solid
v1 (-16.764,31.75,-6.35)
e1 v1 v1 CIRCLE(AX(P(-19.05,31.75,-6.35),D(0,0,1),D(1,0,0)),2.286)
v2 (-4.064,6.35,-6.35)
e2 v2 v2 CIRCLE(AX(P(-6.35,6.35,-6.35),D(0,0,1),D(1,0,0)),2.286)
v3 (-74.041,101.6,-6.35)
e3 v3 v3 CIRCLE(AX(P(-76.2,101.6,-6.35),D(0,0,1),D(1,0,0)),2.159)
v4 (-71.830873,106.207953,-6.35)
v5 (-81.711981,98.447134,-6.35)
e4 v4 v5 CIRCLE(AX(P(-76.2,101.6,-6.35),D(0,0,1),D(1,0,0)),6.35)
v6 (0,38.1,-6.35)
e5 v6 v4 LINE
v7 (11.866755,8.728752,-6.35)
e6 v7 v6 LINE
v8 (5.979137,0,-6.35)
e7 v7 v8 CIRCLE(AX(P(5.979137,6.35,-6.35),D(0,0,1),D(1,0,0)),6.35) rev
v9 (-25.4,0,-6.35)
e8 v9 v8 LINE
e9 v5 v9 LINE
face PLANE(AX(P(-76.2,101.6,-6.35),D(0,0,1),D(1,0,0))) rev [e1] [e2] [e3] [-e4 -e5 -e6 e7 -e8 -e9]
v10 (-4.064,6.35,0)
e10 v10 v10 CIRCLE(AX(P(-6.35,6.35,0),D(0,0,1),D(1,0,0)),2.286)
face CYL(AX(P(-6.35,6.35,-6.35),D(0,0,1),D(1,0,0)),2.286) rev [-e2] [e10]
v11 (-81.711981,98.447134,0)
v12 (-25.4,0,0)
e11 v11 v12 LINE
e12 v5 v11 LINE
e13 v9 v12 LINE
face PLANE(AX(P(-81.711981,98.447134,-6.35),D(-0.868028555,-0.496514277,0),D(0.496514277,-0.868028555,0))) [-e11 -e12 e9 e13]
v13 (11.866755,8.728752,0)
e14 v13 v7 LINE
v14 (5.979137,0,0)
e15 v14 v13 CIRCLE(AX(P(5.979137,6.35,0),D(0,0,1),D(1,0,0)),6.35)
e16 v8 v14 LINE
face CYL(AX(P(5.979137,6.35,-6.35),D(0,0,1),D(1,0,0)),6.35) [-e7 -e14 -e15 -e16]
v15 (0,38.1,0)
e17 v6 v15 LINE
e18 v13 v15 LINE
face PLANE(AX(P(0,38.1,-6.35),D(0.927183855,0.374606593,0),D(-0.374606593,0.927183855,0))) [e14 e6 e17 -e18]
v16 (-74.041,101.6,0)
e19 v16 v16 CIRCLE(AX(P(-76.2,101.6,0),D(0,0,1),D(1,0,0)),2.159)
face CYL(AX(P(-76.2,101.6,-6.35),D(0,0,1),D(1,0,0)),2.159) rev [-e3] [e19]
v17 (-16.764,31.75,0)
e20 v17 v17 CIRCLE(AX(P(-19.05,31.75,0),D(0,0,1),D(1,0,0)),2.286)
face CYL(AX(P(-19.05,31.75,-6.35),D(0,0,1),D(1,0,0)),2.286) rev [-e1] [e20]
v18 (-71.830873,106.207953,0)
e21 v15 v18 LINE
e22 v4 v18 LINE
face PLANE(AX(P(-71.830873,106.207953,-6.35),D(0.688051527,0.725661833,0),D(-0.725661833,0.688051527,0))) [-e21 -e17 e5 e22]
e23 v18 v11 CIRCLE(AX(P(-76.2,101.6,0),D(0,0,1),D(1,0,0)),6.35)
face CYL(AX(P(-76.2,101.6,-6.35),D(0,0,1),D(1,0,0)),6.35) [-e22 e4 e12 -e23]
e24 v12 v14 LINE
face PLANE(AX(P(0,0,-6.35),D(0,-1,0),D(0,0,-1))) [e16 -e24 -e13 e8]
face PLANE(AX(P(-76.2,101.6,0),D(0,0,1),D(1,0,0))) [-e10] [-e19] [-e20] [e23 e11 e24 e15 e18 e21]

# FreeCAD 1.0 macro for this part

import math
import FreeCAD as App
import Part
import Sketcher

V = App.Vector
Q = App.Units.Quantity


def edges_at(feature, points):
    """Names of the edges that pass closest to the given points."""
    edges = feature.Shape.Edges
    near = lambda p: min(range(len(edges)), key=lambda i: edges[i].distToShape(Part.Vertex(*p))[0])
    return sorted({f"Edge{near(p) + 1}" for p in points})

doc = App.newDocument("Part")
params = doc.addObject("Spreadsheet::Sheet", "Params")
for row, (alias, value) in enumerate([
    ("sketch1_diameter", "0.18 in"),
    ("sketch1_diameter2", "0.17 in"),
    ("sketch1_radius", "0.25 in"),
    ("pad1_length", "0.25 in"),
    ("fillet_radius", "0.25 in"),
], start=1):
    params.set(f"A{row}", alias)
    params.set(f"B{row}", "=" + value)
    params.setAlias(f"B{row}", alias)

body = doc.addObject("PartDesign::Body", "Body")

# Sketch on XY plane
sketch1 = body.newObject("Sketcher::SketchObject", "Sketch")
sketch1.AttachmentSupport = (doc.getObject("XY_Plane"), [""])
sketch1.MapMode = "FlatFace"
sketch1.addGeometry([
    Part.LineSegment(V(-81.711981, 98.447134, 0), V(-25.4, 0, 0)),  # 0
    Part.LineSegment(V(-25.4, 0, 0), V(15.393399, 0, 0)),  # 1
    Part.LineSegment(V(15.393399, 0, 0), V(0, 38.1, 0)),  # 2
    Part.LineSegment(V(0, 38.1, 0), V(-71.830873, 106.207953, 0)),  # 3
    Part.ArcOfCircle(Part.Circle(V(-76.2, 101.6, 0), V(0, 0, 1), 6.35), math.radians(46.523932), math.radians(209.769653)),  # 4
    Part.Circle(V(-6.35, 6.35, 0), V(0, 0, 1), 2.286),  # 5
    Part.Circle(V(-19.05, 31.75, 0), V(0, 0, 1), 2.286),  # 6
    Part.Circle(V(-76.2, 101.6, 0), V(0, 0, 1), 2.159),  # 7
], False)
sketch1.addConstraint([
    Sketcher.Constraint("Coincident", 0, 2, 1, 1),
    Sketcher.Constraint("Coincident", 1, 2, 2, 1),
    Sketcher.Constraint("Coincident", 2, 2, 3, 1),
    Sketcher.Constraint("Tangent", 3, 2, 4, 1),
    Sketcher.Constraint("Tangent", 4, 2, 0, 1),
    Sketcher.Constraint("Horizontal", 1),
    Sketcher.Constraint("Coincident", 7, 3, 4, 3),
    Sketcher.Constraint("Equal", 5, 6),
    Sketcher.Constraint("PointOnObject", 0, 2, -1),
    Sketcher.Constraint("PointOnObject", 2, 2, -2),
    Sketcher.Constraint("Diameter", 5, Q("0.18 in")),
    Sketcher.Constraint("Diameter", 7, Q("0.17 in")),
    Sketcher.Constraint("Radius", 4, Q("0.25 in")),
    Sketcher.Constraint("DistanceX", 4, 3, -1, 1, Q("3 in")),
    Sketcher.Constraint("DistanceY", -1, 1, 4, 3, Q("4 in")),
    Sketcher.Constraint("DistanceX", 0, 2, -1, 1, Q("1 in")),
    Sketcher.Constraint("Angle", 2, Q("112 deg")),
    Sketcher.Constraint("DistanceY", 5, 3, 6, 3, Q("1 in")),
    Sketcher.Constraint("DistanceY", -1, 1, 2, 2, Q("1.5 in")),
    Sketcher.Constraint("DistanceX", 6, 3, 5, 3, Q("0.5 in")),
    Sketcher.Constraint("DistanceX", 5, 3, -1, 1, Q("0.25 in")),
    Sketcher.Constraint("DistanceY", -1, 1, 5, 3, Q("0.25 in")),
])
sketch1.setExpression("Constraints[10]", "Params.sketch1_diameter")
sketch1.setExpression("Constraints[11]", "Params.sketch1_diameter2")
sketch1.setExpression("Constraints[12]", "Params.sketch1_radius")
pad1 = body.newObject("PartDesign::Pad", "Pad")
pad1.Profile = sketch1
pad1.setExpression("Length", "Params.pad1_length")
pad1.Reversed = True
doc.recompute()

fillet = body.newObject("PartDesign::Fillet", "Fillet")
fillet.Base = (pad1, edges_at(pad1, [(15.393, 0, -3.175)]))
fillet.setExpression("Radius", "Params.fillet_radius")

doc.recompute()
